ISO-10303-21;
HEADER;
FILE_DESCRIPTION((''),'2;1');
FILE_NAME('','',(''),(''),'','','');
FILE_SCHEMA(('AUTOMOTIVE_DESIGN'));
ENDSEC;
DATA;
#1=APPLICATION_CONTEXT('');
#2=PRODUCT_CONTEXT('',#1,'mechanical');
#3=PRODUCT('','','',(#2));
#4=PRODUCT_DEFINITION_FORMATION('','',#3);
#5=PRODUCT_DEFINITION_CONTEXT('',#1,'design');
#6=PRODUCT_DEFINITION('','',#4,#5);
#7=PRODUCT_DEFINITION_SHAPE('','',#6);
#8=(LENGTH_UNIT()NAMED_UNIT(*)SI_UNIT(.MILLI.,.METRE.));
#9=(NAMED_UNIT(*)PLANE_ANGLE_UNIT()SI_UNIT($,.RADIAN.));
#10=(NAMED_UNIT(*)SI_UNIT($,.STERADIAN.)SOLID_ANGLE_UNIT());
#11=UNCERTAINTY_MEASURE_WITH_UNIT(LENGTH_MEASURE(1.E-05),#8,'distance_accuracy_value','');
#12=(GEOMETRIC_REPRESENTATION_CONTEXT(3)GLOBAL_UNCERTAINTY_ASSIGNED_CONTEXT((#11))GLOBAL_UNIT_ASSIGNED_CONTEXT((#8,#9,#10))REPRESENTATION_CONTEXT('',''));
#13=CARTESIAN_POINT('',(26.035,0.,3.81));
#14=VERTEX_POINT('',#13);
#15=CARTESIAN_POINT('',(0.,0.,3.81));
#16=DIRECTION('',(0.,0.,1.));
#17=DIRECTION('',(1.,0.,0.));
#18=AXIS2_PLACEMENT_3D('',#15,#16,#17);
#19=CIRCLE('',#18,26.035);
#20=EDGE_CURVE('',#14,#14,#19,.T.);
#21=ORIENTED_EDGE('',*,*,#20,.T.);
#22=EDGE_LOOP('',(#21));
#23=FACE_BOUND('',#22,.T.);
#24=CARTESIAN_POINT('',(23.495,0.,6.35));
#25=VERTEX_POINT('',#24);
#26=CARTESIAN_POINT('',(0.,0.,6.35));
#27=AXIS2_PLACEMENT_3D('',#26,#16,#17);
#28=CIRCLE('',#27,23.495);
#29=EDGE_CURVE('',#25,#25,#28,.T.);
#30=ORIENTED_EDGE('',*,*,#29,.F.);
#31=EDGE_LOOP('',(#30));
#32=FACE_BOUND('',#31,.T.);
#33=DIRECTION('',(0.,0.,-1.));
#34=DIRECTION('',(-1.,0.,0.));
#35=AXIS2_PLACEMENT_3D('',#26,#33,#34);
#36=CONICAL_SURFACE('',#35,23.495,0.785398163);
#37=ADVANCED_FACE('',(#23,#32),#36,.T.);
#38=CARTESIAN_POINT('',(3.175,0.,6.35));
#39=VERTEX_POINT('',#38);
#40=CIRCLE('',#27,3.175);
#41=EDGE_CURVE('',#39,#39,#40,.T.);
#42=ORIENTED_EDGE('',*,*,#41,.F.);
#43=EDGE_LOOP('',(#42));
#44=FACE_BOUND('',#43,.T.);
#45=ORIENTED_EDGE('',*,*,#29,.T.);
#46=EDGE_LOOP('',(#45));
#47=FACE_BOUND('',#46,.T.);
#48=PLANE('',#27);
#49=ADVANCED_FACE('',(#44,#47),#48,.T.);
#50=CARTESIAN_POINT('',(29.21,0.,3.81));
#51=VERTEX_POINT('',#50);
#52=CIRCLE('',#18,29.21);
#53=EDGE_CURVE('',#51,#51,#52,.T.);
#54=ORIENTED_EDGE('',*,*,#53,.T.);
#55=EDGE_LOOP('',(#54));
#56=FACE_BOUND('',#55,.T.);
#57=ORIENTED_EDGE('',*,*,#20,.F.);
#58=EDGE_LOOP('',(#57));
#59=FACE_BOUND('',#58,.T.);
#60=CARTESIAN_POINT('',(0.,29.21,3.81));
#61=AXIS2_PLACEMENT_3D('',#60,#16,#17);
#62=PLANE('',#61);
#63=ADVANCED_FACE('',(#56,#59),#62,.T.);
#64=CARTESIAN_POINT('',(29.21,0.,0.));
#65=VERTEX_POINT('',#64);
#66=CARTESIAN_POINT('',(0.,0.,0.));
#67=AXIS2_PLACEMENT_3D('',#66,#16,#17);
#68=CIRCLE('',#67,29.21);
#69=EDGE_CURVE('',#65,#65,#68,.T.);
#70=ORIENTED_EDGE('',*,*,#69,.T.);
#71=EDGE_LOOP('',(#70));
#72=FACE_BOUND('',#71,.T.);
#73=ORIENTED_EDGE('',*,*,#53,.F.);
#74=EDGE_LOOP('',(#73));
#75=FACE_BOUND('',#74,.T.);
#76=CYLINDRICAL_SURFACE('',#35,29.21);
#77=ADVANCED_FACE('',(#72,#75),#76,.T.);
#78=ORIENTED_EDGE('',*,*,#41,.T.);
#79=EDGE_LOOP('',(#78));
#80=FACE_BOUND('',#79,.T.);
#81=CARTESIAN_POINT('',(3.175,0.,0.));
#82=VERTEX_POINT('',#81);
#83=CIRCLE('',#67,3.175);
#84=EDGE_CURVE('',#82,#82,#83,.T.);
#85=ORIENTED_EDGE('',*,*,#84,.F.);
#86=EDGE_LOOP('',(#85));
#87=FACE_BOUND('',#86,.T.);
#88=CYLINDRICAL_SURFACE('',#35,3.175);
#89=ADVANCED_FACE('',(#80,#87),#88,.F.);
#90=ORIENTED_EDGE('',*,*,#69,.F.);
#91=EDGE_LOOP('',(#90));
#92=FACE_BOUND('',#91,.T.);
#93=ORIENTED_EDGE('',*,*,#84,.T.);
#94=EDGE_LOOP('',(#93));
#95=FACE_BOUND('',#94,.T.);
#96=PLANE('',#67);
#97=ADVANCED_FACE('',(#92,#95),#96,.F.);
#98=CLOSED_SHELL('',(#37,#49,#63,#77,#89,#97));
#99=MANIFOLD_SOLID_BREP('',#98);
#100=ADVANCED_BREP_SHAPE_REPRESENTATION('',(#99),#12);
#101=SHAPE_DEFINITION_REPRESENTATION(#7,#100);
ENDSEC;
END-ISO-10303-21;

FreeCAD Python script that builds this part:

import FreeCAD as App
import Part
import Sketcher
Q = App.Units.Quantity

doc = App.newDocument("Part")
body = doc.addObject("PartDesign::Body", "Body")

# Sketch on XY plane
sketch1 = body.newObject("Sketcher::SketchObject", "Sketch")
sketch1.AttachmentSupport = (doc.getObject("XY_Plane"), [""])
sketch1.MapMode = "FlatFace"
sketch1.addGeometry(Part.Circle(App.Vector(0, 0, 0), App.Vector(0, 0, 1), 29.2), False)
sketch1.addGeometry(Part.Circle(App.Vector(0, 0, 0), App.Vector(0, 0, 1), 3.2), False)
sketch1.addConstraint(Sketcher.Constraint("Coincident", 0, 3, -1, 1))
sketch1.addConstraint(Sketcher.Constraint("Coincident", 1, 3, -1, 1))
sketch1.addConstraint(Sketcher.Constraint("Diameter", 0, Q("2.3 in")))
sketch1.addConstraint(Sketcher.Constraint("Diameter", 1, Q("0.25 in")))
pad1 = body.newObject("PartDesign::Pad", "Pad")
pad1.Profile = sketch1
pad1.Length = Q("0.25 in")

# Sketch on YZ plane
sketch2 = body.newObject("Sketcher::SketchObject", "Sketch001")
sketch2.AttachmentSupport = (doc.getObject("YZ_Plane"), [""])
sketch2.MapMode = "FlatFace"
sketch2.addGeometry(Part.LineSegment(App.Vector(29.2, 3.8, 0), App.Vector(29.2, 6.3, 0)), False)
sketch2.addGeometry(Part.LineSegment(App.Vector(29.2, 6.3, 0), App.Vector(23.5, 6.3, 0)), False)
sketch2.addGeometry(Part.LineSegment(App.Vector(23.5, 6.3, 0), App.Vector(26, 3.8, 0)), False)
sketch2.addGeometry(Part.LineSegment(App.Vector(26, 3.8, 0), App.Vector(29.2, 3.8, 0)), False)
sketch2.addConstraint(Sketcher.Constraint("Coincident", 0, 2, 1, 1))
sketch2.addConstraint(Sketcher.Constraint("Coincident", 1, 2, 2, 1))
sketch2.addConstraint(Sketcher.Constraint("Coincident", 2, 2, 3, 1))
sketch2.addConstraint(Sketcher.Constraint("Coincident", 3, 2, 0, 1))
sketch2.addConstraint(Sketcher.Constraint("Vertical", 0))
sketch2.addConstraint(Sketcher.Constraint("Horizontal", 1))
sketch2.addConstraint(Sketcher.Constraint("Horizontal", 3))
sketch2.addConstraint(Sketcher.Constraint("DistanceY", 0, 1, 0, 2, Q("0.1 in")))
sketch2.addConstraint(Sketcher.Constraint("Angle", 2, Q("-45 deg")))
sketch2.addConstraint(Sketcher.Constraint("DistanceX", 1, 2, 1, 1, Q("0.225 in")))
sketch2.addConstraint(Sketcher.Constraint("DistanceX", -1, 1, 0, 2, Q("1.15 in")))
sketch2.addConstraint(Sketcher.Constraint("DistanceY", -1, 1, 0, 2, Q("0.25 in")))
groove = body.newObject("PartDesign::Groove", "Groove")
groove.Profile = sketch2
groove.ReferenceAxis = (sketch2, ["V_Axis"])
groove.Angle = 360

doc.recompute()
